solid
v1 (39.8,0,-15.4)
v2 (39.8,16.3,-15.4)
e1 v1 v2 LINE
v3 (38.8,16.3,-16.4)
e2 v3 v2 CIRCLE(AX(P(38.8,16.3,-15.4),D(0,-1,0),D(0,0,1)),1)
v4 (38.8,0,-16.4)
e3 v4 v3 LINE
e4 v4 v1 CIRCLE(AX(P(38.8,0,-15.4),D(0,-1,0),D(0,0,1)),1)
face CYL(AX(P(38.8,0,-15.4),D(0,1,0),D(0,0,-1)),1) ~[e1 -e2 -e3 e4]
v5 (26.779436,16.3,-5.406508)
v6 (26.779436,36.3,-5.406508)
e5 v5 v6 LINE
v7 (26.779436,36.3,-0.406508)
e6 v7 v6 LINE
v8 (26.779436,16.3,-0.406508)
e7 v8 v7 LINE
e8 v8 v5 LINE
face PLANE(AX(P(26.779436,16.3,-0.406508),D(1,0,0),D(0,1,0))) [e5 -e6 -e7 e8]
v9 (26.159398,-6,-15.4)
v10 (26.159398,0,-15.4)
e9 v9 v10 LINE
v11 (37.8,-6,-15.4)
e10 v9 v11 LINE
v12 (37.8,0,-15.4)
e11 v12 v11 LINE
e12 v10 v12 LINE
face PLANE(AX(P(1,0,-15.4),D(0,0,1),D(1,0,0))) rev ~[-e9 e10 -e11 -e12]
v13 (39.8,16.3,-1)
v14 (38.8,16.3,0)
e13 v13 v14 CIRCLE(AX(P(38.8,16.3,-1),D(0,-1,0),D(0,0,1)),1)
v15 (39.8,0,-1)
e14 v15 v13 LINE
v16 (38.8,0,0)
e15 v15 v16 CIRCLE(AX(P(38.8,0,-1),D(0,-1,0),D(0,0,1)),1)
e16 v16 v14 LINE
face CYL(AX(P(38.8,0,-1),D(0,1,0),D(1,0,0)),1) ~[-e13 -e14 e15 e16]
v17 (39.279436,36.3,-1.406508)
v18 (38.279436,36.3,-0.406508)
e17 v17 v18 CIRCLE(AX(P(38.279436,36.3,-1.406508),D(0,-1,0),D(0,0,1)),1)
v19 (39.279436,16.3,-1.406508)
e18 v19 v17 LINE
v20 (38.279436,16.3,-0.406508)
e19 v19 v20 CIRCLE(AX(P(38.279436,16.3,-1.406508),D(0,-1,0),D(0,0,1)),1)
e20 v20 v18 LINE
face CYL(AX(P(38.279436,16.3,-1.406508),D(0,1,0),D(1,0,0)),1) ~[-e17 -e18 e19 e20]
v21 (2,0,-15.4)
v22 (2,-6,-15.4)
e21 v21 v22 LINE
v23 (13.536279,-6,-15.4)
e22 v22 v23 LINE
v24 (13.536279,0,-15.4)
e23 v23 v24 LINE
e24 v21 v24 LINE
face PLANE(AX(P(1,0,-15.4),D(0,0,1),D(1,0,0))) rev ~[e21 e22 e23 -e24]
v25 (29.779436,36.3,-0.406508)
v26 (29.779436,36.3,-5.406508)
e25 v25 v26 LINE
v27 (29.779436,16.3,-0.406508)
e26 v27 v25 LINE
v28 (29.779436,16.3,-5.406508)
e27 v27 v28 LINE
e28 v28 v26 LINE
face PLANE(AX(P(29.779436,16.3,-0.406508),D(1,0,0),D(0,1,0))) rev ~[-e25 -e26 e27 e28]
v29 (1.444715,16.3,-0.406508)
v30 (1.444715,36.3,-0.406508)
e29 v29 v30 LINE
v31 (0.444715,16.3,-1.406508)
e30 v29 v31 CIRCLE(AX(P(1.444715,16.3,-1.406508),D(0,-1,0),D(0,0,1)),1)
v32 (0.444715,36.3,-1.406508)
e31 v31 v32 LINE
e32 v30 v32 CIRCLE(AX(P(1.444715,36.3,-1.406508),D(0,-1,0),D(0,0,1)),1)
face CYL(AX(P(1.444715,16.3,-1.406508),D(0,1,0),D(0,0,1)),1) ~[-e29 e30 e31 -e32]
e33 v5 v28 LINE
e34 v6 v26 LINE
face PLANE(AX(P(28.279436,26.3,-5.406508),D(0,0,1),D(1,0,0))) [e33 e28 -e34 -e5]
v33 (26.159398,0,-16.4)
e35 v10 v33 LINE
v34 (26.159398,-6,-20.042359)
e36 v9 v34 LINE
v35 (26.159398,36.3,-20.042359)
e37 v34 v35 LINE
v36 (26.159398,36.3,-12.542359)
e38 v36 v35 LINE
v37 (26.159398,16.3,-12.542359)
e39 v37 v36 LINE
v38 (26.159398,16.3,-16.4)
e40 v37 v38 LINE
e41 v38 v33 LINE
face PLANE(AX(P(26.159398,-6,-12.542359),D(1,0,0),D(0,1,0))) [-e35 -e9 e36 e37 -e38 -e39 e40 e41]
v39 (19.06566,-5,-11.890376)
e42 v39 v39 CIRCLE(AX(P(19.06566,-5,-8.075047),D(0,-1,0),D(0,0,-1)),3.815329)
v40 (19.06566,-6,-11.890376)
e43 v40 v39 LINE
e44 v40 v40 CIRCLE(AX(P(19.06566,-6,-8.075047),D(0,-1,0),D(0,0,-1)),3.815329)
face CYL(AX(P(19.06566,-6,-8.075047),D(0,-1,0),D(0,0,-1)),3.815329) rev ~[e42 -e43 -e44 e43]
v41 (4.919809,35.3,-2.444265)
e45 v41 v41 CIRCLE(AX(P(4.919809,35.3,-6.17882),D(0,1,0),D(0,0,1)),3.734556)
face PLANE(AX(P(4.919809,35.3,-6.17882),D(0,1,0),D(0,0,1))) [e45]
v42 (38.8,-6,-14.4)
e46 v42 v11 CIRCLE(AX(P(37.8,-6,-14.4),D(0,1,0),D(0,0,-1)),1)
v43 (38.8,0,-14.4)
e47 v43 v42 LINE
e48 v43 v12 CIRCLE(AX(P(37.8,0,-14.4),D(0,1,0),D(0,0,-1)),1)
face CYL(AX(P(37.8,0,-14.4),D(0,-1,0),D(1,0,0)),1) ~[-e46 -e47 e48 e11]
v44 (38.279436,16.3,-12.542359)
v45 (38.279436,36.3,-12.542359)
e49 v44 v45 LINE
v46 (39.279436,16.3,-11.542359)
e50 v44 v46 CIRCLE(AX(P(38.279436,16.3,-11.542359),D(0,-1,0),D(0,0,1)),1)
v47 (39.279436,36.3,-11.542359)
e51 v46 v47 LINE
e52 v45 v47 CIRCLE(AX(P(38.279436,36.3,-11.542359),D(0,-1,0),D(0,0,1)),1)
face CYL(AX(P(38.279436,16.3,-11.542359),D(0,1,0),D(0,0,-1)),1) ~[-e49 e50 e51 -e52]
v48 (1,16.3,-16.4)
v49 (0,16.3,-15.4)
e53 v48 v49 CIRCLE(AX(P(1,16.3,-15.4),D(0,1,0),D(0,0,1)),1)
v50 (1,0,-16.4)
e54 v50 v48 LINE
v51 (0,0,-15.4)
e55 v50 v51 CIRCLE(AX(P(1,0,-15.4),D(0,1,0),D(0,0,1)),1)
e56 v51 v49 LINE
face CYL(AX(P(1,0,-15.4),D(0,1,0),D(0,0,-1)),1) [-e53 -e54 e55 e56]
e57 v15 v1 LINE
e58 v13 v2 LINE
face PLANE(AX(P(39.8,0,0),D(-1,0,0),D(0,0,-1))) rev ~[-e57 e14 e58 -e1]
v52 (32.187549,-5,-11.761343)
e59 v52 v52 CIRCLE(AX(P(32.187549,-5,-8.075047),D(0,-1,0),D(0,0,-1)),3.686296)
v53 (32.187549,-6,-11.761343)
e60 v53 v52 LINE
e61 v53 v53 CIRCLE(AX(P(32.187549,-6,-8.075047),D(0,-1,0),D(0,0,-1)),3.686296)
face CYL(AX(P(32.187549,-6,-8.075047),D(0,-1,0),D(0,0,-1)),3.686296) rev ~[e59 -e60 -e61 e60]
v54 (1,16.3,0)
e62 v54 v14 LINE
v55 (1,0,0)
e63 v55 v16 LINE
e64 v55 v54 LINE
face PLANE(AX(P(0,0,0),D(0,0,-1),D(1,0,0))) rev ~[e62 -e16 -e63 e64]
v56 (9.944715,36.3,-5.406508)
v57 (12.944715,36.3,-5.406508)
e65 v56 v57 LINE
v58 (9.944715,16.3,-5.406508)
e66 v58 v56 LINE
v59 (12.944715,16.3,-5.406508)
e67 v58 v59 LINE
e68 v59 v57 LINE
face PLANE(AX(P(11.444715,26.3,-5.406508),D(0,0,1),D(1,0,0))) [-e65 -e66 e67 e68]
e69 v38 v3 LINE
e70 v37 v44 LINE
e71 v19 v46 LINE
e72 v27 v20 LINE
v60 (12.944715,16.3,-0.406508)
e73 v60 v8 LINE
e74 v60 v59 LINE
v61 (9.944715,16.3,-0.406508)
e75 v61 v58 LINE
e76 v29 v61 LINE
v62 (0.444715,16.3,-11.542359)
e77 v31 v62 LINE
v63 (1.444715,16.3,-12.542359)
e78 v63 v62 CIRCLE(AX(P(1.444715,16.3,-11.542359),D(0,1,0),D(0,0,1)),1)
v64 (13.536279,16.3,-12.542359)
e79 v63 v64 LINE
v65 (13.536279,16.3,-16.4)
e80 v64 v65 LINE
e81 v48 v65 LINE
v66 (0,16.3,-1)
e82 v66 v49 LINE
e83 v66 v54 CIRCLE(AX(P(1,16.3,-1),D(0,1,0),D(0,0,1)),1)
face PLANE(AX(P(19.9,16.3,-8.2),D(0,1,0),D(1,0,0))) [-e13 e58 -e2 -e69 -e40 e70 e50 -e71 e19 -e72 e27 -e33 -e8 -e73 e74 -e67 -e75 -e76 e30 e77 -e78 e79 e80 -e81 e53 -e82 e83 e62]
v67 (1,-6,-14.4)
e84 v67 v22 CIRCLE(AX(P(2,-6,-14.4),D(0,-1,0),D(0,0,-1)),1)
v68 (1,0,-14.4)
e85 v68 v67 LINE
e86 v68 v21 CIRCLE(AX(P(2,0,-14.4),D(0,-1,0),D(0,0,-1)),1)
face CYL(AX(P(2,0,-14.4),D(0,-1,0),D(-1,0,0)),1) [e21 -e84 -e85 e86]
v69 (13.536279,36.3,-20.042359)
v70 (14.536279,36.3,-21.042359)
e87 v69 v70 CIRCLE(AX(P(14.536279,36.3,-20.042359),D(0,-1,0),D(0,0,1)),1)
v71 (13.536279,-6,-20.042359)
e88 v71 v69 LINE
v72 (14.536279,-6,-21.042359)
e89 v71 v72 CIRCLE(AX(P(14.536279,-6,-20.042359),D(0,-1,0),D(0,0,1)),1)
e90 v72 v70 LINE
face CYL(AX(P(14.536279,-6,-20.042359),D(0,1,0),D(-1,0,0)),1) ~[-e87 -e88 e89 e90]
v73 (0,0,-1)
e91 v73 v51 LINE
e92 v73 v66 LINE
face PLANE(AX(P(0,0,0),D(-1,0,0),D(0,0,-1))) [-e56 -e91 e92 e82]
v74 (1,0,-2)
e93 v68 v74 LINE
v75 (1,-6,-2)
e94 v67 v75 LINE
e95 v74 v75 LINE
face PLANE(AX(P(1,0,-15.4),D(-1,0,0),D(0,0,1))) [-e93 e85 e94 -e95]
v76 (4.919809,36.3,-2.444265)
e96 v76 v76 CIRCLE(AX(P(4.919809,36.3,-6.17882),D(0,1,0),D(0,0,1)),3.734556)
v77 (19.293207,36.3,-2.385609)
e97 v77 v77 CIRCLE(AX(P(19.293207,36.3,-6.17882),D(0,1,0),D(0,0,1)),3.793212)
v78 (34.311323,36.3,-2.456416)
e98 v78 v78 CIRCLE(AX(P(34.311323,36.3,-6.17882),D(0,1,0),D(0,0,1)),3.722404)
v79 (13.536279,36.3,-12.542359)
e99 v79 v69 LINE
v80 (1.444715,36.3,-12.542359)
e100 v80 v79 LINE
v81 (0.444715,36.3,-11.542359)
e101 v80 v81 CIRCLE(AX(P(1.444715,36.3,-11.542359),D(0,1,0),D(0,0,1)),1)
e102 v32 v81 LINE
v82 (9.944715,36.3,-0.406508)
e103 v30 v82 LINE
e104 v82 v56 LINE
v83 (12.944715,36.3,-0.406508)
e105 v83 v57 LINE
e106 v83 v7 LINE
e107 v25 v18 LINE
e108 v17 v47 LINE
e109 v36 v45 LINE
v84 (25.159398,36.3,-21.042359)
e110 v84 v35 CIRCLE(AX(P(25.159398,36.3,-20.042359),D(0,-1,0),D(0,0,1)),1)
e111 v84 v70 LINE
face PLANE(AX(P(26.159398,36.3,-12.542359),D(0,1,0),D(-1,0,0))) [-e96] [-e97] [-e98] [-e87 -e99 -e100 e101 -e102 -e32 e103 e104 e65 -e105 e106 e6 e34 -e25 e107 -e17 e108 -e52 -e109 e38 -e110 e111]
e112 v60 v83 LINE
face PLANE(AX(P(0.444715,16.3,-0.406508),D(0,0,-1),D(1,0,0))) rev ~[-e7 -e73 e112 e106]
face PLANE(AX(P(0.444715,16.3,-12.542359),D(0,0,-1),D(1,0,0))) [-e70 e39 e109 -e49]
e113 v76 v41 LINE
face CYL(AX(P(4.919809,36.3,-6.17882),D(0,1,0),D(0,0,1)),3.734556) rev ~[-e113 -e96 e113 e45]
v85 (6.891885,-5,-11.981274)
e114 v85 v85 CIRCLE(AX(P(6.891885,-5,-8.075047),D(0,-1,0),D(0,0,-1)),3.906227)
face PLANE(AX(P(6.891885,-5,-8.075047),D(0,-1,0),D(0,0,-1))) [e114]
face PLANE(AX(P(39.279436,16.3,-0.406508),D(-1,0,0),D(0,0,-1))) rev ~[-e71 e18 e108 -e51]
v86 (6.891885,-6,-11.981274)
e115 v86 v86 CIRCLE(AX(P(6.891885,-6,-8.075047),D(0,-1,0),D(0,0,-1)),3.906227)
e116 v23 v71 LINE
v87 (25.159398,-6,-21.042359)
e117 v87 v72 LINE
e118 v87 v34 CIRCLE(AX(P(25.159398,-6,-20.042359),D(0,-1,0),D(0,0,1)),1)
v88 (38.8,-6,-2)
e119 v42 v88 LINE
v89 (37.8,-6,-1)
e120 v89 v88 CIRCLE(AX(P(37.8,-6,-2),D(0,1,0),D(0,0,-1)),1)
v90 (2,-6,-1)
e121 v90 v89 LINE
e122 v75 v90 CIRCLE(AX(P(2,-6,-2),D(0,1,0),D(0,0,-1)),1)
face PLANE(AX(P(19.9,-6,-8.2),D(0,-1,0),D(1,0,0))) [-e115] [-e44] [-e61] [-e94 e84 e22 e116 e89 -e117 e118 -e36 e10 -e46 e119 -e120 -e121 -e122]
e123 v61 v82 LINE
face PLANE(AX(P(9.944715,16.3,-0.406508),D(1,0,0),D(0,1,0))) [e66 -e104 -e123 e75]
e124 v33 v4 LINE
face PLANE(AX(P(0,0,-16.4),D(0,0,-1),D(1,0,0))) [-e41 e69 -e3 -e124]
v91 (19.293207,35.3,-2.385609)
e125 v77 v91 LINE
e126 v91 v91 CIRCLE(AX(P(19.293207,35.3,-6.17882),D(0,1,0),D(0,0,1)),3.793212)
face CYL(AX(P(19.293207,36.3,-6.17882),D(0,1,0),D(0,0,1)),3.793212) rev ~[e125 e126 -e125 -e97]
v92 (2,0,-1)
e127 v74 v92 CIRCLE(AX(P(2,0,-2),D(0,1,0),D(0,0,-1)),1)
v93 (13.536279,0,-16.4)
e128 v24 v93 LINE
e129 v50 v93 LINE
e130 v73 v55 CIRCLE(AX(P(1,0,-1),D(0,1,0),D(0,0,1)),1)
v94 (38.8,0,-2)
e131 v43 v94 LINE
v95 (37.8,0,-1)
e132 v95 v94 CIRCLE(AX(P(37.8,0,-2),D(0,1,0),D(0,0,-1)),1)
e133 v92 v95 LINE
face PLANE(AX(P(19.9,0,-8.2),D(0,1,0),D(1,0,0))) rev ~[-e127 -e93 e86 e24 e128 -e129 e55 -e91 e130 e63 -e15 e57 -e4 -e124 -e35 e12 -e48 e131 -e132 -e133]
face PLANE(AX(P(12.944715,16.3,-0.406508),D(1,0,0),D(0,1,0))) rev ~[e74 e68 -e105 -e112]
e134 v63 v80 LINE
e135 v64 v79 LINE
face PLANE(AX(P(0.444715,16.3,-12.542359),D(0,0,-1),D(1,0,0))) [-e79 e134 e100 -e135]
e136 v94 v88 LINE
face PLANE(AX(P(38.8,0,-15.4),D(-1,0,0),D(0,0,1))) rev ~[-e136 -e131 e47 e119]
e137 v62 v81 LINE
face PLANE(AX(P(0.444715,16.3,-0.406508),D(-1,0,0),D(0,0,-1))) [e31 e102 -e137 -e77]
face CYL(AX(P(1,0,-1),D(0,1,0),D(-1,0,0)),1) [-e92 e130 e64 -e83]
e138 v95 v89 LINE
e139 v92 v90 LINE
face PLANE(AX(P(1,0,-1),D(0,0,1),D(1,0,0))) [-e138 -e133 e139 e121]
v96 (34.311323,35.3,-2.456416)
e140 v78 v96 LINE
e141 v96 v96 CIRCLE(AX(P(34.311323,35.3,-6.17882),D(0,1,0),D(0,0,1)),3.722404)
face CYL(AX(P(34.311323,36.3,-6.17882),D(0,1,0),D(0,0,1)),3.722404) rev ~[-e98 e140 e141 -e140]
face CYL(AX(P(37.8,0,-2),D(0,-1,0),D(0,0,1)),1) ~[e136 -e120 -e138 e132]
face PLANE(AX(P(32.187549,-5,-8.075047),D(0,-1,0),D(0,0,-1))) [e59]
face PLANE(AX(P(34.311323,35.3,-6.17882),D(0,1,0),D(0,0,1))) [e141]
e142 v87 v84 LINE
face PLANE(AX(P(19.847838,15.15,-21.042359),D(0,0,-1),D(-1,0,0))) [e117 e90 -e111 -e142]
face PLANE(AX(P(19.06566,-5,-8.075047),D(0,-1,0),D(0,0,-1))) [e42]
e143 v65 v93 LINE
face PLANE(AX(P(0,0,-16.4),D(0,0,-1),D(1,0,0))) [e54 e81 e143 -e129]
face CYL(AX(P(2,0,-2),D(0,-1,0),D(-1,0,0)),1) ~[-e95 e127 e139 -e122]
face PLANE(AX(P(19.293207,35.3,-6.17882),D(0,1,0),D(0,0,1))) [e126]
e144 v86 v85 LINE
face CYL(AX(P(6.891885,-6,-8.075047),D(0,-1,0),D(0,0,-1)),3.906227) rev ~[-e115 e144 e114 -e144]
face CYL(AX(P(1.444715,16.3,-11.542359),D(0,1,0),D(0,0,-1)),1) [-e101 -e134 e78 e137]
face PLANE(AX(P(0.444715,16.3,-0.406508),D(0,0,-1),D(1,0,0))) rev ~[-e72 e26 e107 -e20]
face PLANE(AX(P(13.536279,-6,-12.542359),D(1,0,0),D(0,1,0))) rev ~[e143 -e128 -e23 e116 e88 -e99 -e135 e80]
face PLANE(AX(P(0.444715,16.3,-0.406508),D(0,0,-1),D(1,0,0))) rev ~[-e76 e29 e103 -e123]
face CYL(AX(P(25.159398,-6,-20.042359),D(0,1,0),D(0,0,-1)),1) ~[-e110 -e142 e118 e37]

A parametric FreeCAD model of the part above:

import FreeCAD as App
import Part
import Sketcher


def edges_at(feature, points):
    """Names of the edges that pass closest to the given points."""
    edges = feature.Shape.Edges
    near = lambda p: min(range(len(edges)), key=lambda i: edges[i].distToShape(Part.Vertex(*p))[0])
    return sorted({f"Edge{near(p) + 1}" for p in points})

doc = App.newDocument("Part")
body = doc.addObject("PartDesign::Body", "Body")

# Sketch on XZ plane
sketch1 = doc.addObject("Sketcher::SketchObject", "Sketch")
body.addObject(sketch1)
sketch1.AttachmentSupport = (doc.XZ_Plane, [""])
sketch1.MapMode = "FlatFace"
sketch1.addGeometry([
    Part.LineSegment(App.Vector(0, -16, 0), App.Vector(0, 0, 0)),
    Part.LineSegment(App.Vector(0, 0, 0), App.Vector(40, 0, 0)),
    Part.LineSegment(App.Vector(40, 0, 0), App.Vector(40, -16, 0)),
    Part.LineSegment(App.Vector(40, -16, 0), App.Vector(0, -16, 0)),
], False)
sketch1.addConstraint([
    Sketcher.Constraint("Coincident", 0, 2, 1, 1),
    Sketcher.Constraint("Coincident", 1, 2, 2, 1),
    Sketcher.Constraint("Coincident", 2, 2, 3, 1),
    Sketcher.Constraint("Coincident", 3, 2, 0, 1),
    Sketcher.Constraint("Vertical", 0),
    Sketcher.Constraint("Horizontal", 1),
    Sketcher.Constraint("Vertical", 2),
    Sketcher.Constraint("Horizontal", 3),
    Sketcher.Constraint("Coincident", 0, 2, -1, 1),
    Sketcher.Constraint("DistanceX", 1, 1, 1, 2, 39.8),
    Sketcher.Constraint("DistanceY", 0, 1, 0, 2, 16.4),
])
pad1 = doc.addObject("PartDesign::Pad", "Pad")
body.addObject(pad1)
pad1.Profile = sketch1
pad1.Length = 16.3
pad1.Reversed = True

# Sketch on XZ plane
sketch2 = doc.addObject("Sketcher::SketchObject", "Sketch001")
body.addObject(sketch2)
sketch2.AttachmentSupport = (doc.XZ_Plane, [""])
sketch2.MapMode = "FlatFace"
sketch2.addGeometry([
    Part.LineSegment(App.Vector(1, -1, 0), App.Vector(1, -15, 0)),
    Part.LineSegment(App.Vector(1, -15, 0), App.Vector(39, -15, 0)),
    Part.LineSegment(App.Vector(39, -15, 0), App.Vector(39, -1, 0)),
    Part.LineSegment(App.Vector(39, -1, 0), App.Vector(1, -1, 0)),
], False)
sketch2.addConstraint([
    Sketcher.Constraint("Coincident", 0, 2, 1, 1),
    Sketcher.Constraint("Coincident", 1, 2, 2, 1),
    Sketcher.Constraint("Coincident", 2, 2, 3, 1),
    Sketcher.Constraint("Coincident", 3, 2, 0, 1),
    Sketcher.Constraint("Vertical", 0),
    Sketcher.Constraint("Horizontal", 1),
    Sketcher.Constraint("Vertical", 2),
    Sketcher.Constraint("Horizontal", 3),
    Sketcher.Constraint("DistanceX", 1, 1, 1, 2, 37.8),
    Sketcher.Constraint("DistanceY", 0, 2, 0, 1, 14.4),
    Sketcher.Constraint("DistanceX", -1, 1, 0, 2, 1.0),
    Sketcher.Constraint("DistanceY", 2, 2, -1, 1, 1.0),
])
pad2 = doc.addObject("PartDesign::Pad", "Pad001")
body.addObject(pad2)
pad2.Profile = sketch2
pad2.Length = 6

# Sketch on XZ plane
sketch3 = doc.addObject("Sketcher::SketchObject", "Sketch002")
body.addObject(sketch3)
sketch3.AttachmentSupport = (doc.XZ_Plane, [""])
sketch3.MapMode = "FlatFace"
sketch3.AttachmentOffset = App.Placement(App.Vector(0, 0, -16.3), App.Rotation())
sketch3.addGeometry([
    Part.LineSegment(App.Vector(0, -13, 0), App.Vector(0, 0, 0)),
    Part.LineSegment(App.Vector(0, 0, 0), App.Vector(39, 0, 0)),
    Part.LineSegment(App.Vector(39, 0, 0), App.Vector(39, -13, 0)),
    Part.LineSegment(App.Vector(39, -13, 0), App.Vector(0, -13, 0)),
], False)
sketch3.addConstraint([
    Sketcher.Constraint("Coincident", 0, 2, 1, 1),
    Sketcher.Constraint("Coincident", 1, 2, 2, 1),
    Sketcher.Constraint("Coincident", 2, 2, 3, 1),
    Sketcher.Constraint("Coincident", 3, 2, 0, 1),
    Sketcher.Constraint("Vertical", 0),
    Sketcher.Constraint("Horizontal", 1),
    Sketcher.Constraint("Vertical", 2),
    Sketcher.Constraint("Horizontal", 3),
    Sketcher.Constraint("DistanceX", 1, 1, 1, 2, 38.834722),
    Sketcher.Constraint("DistanceY", 0, 1, 0, 2, 12.135851),
    Sketcher.Constraint("DistanceY", 0, 2, -1, 1, 0.406508),
    Sketcher.Constraint("DistanceX", -1, 1, 0, 2, 0.444715),
])
pad3 = doc.addObject("PartDesign::Pad", "Pad002")
body.addObject(pad3)
pad3.Profile = sketch3
pad3.Length = 20
pad3.Reversed = True

# Sketch on XY plane
sketch4 = doc.addObject("Sketcher::SketchObject", "Sketch003")
body.addObject(sketch4)
sketch4.AttachmentSupport = (doc.XY_Plane, [""])
sketch4.MapMode = "FlatFace"
sketch4.AttachmentOffset = App.Placement(App.Vector(0, 0, -12.542359), App.Rotation())
sketch4.addGeometry([
    Part.LineSegment(App.Vector(26, 36, 0), App.Vector(26, -6, 0)),
    Part.LineSegment(App.Vector(26, -6, 0), App.Vector(14, -6, 0)),
    Part.LineSegment(App.Vector(14, -6, 0), App.Vector(14, 36, 0)),
    Part.LineSegment(App.Vector(14, 36, 0), App.Vector(26, 36, 0)),
], False)
sketch4.addConstraint([
    Sketcher.Constraint("Coincident", 0, 2, 1, 1),
    Sketcher.Constraint("Coincident", 1, 2, 2, 1),
    Sketcher.Constraint("Coincident", 2, 2, 3, 1),
    Sketcher.Constraint("Coincident", 3, 2, 0, 1),
    Sketcher.Constraint("Vertical", 0),
    Sketcher.Constraint("Horizontal", 1),
    Sketcher.Constraint("Vertical", 2),
    Sketcher.Constraint("Horizontal", 3),
    Sketcher.Constraint("DistanceY", 0, 2, 0, 1, 42.3),
    Sketcher.Constraint("DistanceY", 0, 2, -1, 1, 6.0),
    Sketcher.Constraint("DistanceX", 1, 2, 1, 1, 12.623119),
    Sketcher.Constraint("DistanceX", -1, 1, 1, 2, 13.536279),
])
pad4 = doc.addObject("PartDesign::Pad", "Pad003")
body.addObject(pad4)
pad4.Profile = sketch4
pad4.Length = 8.5
pad4.Reversed = True

# Sketch on XY plane
sketch5 = doc.addObject("Sketcher::SketchObject", "Sketch004")
body.addObject(sketch5)
sketch5.AttachmentSupport = (doc.XY_Plane, [""])
sketch5.MapMode = "FlatFace"
sketch5.AttachmentOffset = App.Placement(App.Vector(0, 0, -0.406508), App.Rotation())
sketch5.addGeometry([
    Part.LineSegment(App.Vector(9.9, 36.3, 0), App.Vector(9.9, 16.3, 0)),  # 0
    Part.LineSegment(App.Vector(9.9, 16.3, 0), App.Vector(12.9, 16.3, 0)),  # 1
    Part.LineSegment(App.Vector(12.9, 16.3, 0), App.Vector(12.9, 36.3, 0)),  # 2
    Part.LineSegment(App.Vector(12.9, 36.3, 0), App.Vector(9.9, 36.3, 0)),  # 3
    Part.LineSegment(App.Vector(26.8, 36.3, 0), App.Vector(26.8, 16.3, 0)),  # 4
    Part.LineSegment(App.Vector(26.8, 16.3, 0), App.Vector(29.8, 16.3, 0)),  # 5
    Part.LineSegment(App.Vector(29.8, 16.3, 0), App.Vector(29.8, 36.3, 0)),  # 6
    Part.LineSegment(App.Vector(29.8, 36.3, 0), App.Vector(26.8, 36.3, 0)),  # 7
], False)
sketch5.addConstraint([
    Sketcher.Constraint("Coincident", 0, 2, 1, 1),
    Sketcher.Constraint("Coincident", 1, 2, 2, 1),
    Sketcher.Constraint("Coincident", 2, 2, 3, 1),
    Sketcher.Constraint("Coincident", 3, 2, 0, 1),
    Sketcher.Constraint("Coincident", 4, 2, 5, 1),
    Sketcher.Constraint("Coincident", 5, 2, 6, 1),
    Sketcher.Constraint("Coincident", 6, 2, 7, 1),
    Sketcher.Constraint("Coincident", 7, 2, 4, 1),
    Sketcher.Constraint("Vertical", 0),
    Sketcher.Constraint("Horizontal", 1),
    Sketcher.Constraint("Vertical", 2),
    Sketcher.Constraint("Horizontal", 3),
    Sketcher.Constraint("Vertical", 4),
    Sketcher.Constraint("Horizontal", 5),
    Sketcher.Constraint("Vertical", 6),
    Sketcher.Constraint("Horizontal", 7),
    Sketcher.Constraint("Horizontal", 1, 2, 4, 2),
    Sketcher.Constraint("Horizontal", 3, 2, 6, 2),
    Sketcher.Constraint("Equal", 3, 5),
    Sketcher.Constraint("DistanceX", 1, 1, 1, 2, 3.0),
    Sketcher.Constraint("DistanceY", 0, 2, 0, 1, 20.0),
    Sketcher.Constraint("DistanceY", -1, 1, 0, 2, 16.3),
    Sketcher.Constraint("DistanceX", 1, 2, 4, 2, 13.834722),
    Sketcher.Constraint("DistanceX", -1, 1, 0, 2, 9.944715),
])
pocket1 = doc.addObject("PartDesign::Pocket", "Pocket")
body.addObject(pocket1)
pocket1.Profile = sketch5
pocket1.Length = 5

# Sketch on XZ plane
sketch6 = doc.addObject("Sketcher::SketchObject", "Sketch005")
body.addObject(sketch6)
sketch6.AttachmentSupport = (doc.XZ_Plane, [""])
sketch6.MapMode = "FlatFace"
sketch6.AttachmentOffset = App.Placement(App.Vector(0, 0, -36.3), App.Rotation())
sketch6.addGeometry([
    Part.Circle(App.Vector(4.9, -6.2, 0), App.Vector(0, 0, 1), 3.7),
    Part.Circle(App.Vector(19.3, -6.2, 0), App.Vector(0, 0, 1), 3.8),
    Part.Circle(App.Vector(34.3, -6.2, 0), App.Vector(0, 0, 1), 3.7),
], False)
sketch6.addConstraint([
    Sketcher.Constraint("Horizontal", 0, 3, 1, 3),
    Sketcher.Constraint("Horizontal", 1, 3, 2, 3),
    Sketcher.Constraint("Diameter", 0, 7.469111),
    Sketcher.Constraint("Diameter", 2, 7.444809),
    Sketcher.Constraint("Diameter", 1, 7.586423),
    Sketcher.Constraint("DistanceX", 0, 3, 1, 3, 14.373398),
    Sketcher.Constraint("DistanceX", -1, 1, 0, 3, 4.919809),
    Sketcher.Constraint("DistanceY", 0, 3, -1, 1, 6.17882),
    Sketcher.Constraint("DistanceX", -1, 1, 2, 3, 34.311323),
])
pocket2 = doc.addObject("PartDesign::Pocket", "Pocket001")
body.addObject(pocket2)
pocket2.Profile = sketch6
pocket2.Length = 1
pocket2.Reversed = True

# Sketch on XZ plane
sketch7 = doc.addObject("Sketcher::SketchObject", "Sketch006")
body.addObject(sketch7)
sketch7.AttachmentSupport = (doc.XZ_Plane, [""])
sketch7.MapMode = "FlatFace"
sketch7.AttachmentOffset = App.Placement(App.Vector(0, 0, 6), App.Rotation())
sketch7.addGeometry([
    Part.Circle(App.Vector(6.9, -8.1, 0), App.Vector(0, 0, 1), 3.9),
    Part.Circle(App.Vector(19.1, -8.1, 0), App.Vector(0, 0, 1), 3.8),
    Part.Circle(App.Vector(32.2, -8.1, 0), App.Vector(0, 0, 1), 3.7),
], False)
sketch7.addConstraint([
    Sketcher.Constraint("Horizontal", 0, 3, 1, 3),
    Sketcher.Constraint("Horizontal", 1, 3, 2, 3),
    Sketcher.Constraint("Diameter", 2, 7.372592),
    Sketcher.Constraint("Diameter", 0, 7.812454),
    Sketcher.Constraint("Diameter", 1, 7.630657),
    Sketcher.Constraint("DistanceX", -1, 1, 1, 3, 19.06566),
    Sketcher.Constraint("DistanceX", -1, 1, 2, 3, 32.187549),
    Sketcher.Constraint("DistanceX", -1, 1, 0, 3, 6.891885),
    Sketcher.Constraint("DistanceY", 0, 3, -1, 1, 8.075047),
])
pocket3 = doc.addObject("PartDesign::Pocket", "Pocket002")
body.addObject(pocket3)
pocket3.Profile = sketch7
pocket3.Length = 1
doc.recompute()

fillet = doc.addObject("PartDesign::Fillet", "Fillet")
body.addObject(fillet)
fillet.Base = (pocket3, edges_at(pocket3, [
    (38.8, -3, -1),
    (1, -3, -1),
    (1, -3, -15.4),
    (38.8, -3, -15.4),
    (0.445, 26.3, -12.542),
    (0.445, 26.3, -0.407),
    (39.279, 26.3, -0.407),
    (39.279, 26.3, -12.542),
    (26.159, 15.15, -21.042),
    (13.536, 15.15, -21.042),
    (0, 8.15, -16.4),
    (39.8, 8.15, -16.4),
    (39.8, 8.15, 0),
    (0, 8.15, 0),
]))
fillet.Radius = 1

doc.recompute()
